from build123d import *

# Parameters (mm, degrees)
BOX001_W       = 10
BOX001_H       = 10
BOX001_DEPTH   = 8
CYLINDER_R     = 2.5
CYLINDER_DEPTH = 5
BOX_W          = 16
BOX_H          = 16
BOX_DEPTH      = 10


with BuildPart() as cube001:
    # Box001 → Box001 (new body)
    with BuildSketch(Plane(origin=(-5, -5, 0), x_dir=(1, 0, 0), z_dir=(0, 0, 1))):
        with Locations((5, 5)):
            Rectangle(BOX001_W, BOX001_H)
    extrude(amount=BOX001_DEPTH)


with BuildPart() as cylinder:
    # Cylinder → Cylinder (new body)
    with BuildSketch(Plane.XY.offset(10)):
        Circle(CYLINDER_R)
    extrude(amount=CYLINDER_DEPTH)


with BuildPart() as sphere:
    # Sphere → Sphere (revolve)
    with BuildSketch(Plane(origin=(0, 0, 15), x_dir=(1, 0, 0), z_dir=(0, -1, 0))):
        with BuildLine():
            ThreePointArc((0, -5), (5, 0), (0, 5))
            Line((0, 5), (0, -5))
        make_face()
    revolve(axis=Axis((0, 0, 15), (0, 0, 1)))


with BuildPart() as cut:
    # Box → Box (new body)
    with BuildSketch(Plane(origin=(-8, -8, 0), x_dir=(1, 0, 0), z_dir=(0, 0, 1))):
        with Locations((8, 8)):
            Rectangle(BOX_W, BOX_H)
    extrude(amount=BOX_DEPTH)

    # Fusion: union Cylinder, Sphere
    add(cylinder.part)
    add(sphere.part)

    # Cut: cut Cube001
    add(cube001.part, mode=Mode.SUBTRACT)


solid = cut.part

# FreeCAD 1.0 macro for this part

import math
import FreeCAD as App
import Part
import Sketcher
from FreeCAD import Vector
Q = App.Units.Quantity


def add_polygon(sketch, points):
    """Adds a closed chain of lines whose ends are joined by coincident constraints."""
    first, n = sketch.GeometryCount, len(points)
    for a, b in zip(points, points[1:] + points[:1]):
        sketch.addGeometry(Part.LineSegment(App.Vector(*a, 0), App.Vector(*b, 0)), False)
    for i in range(n):
        sketch.addConstraint(Sketcher.Constraint("Coincident", first + i, 2, first + (i + 1) % n, 1))

doc = App.newDocument("Part")
body = doc.addObject("PartDesign::Body", "Body")

# Sketch on XY plane
sketch1 = doc.addObject("Sketcher::SketchObject", "Sketch")
body.addObject(sketch1)
sketch1.AttachmentSupport = (doc.XY_Plane, [""])
sketch1.MapMode = "FlatFace"
add_polygon(sketch1, [(-5, 5), (-5, -5), (5, -5), (5, 5)])  # lines 0-3
sketch1.addConstraint(Sketcher.Constraint("Vertical", 0))
sketch1.addConstraint(Sketcher.Constraint("Horizontal", 1))
sketch1.addConstraint(Sketcher.Constraint("Vertical", 2))
sketch1.addConstraint(Sketcher.Constraint("Horizontal", 3))
sketch1.addConstraint(Sketcher.Constraint("Symmetric", 0, 2, 2, 2, -1, 1))
sketch1.addConstraint(Sketcher.Constraint("Equal", 3, 0))
sketch1.addConstraint(Sketcher.Constraint("DistanceX", 1, 1, 1, 2, Q("10 mm")))
pad1 = doc.addObject("PartDesign::Pad", "Pad")
body.addObject(pad1)
pad1.Profile = sketch1
pad1.Length = 8
body2 = doc.addObject("PartDesign::Body", "Body001")

# Sketch on XY plane
sketch2 = doc.addObject("Sketcher::SketchObject", "Sketch001")
body2.addObject(sketch2)
sketch2.AttachmentSupport = (doc.getObject("XY_Plane001"), [""])
sketch2.MapMode = "FlatFace"
sketch2.AttachmentOffset = App.Placement(Vector(0, 0, 10), App.Rotation())
sketch2.addGeometry(Part.Circle(Vector(0, 0, 0), Vector(0, 0, 1), 2.5), False)
sketch2.addConstraint(Sketcher.Constraint("Coincident", 0, 3, -1, 1))
sketch2.addConstraint(Sketcher.Constraint("Diameter", 0, Q("5 mm")))
pad2 = doc.addObject("PartDesign::Pad", "Pad001")
body2.addObject(pad2)
pad2.Profile = sketch2
pad2.Length = 5
body3 = doc.addObject("PartDesign::Body", "Body002")

# Sketch on XZ plane
sketch3 = doc.addObject("Sketcher::SketchObject", "Sketch002")
body3.addObject(sketch3)
sketch3.AttachmentSupport = (doc.getObject("XZ_Plane002"), [""])
sketch3.MapMode = "FlatFace"
sketch3.addGeometry(Part.ArcOfCircle(Part.Circle(Vector(0, 15, 0), Vector(0, 0, 1), 5), math.radians(-90), math.radians(90)), False)
sketch3.addGeometry(Part.LineSegment(Vector(0, 20, 0), Vector(0, 10, 0)), False)
sketch3.addConstraint(Sketcher.Constraint("Coincident", 0, 1, 1, 2))
sketch3.addConstraint(Sketcher.Constraint("Coincident", 1, 1, 0, 2))
sketch3.addConstraint(Sketcher.Constraint("Vertical", 1))
sketch3.addConstraint(Sketcher.Constraint("PointOnObject", 0, 3, -2))
sketch3.addConstraint(Sketcher.Constraint("PointOnObject", 0, 1, -2))
sketch3.addConstraint(Sketcher.Constraint("Radius", 0, Q("5 mm")))
sketch3.addConstraint(Sketcher.Constraint("DistanceY", -1, 1, 0, 3, Q("15 mm")))
revolution = doc.addObject("PartDesign::Revolution", "Revolution")
body3.addObject(revolution)
revolution.Profile = sketch3
revolution.ReferenceAxis = (sketch3, ["V_Axis"])
revolution.Angle = 360
body4 = doc.addObject("PartDesign::Body", "Body003")

# Sketch on XY plane
sketch4 = doc.addObject("Sketcher::SketchObject", "Sketch003")
body4.addObject(sketch4)
sketch4.AttachmentSupport = (doc.getObject("XY_Plane003"), [""])
sketch4.MapMode = "FlatFace"
add_polygon(sketch4, [(-8, 8), (-8, -8), (8, -8), (8, 8)])  # lines 0-3
sketch4.addConstraint(Sketcher.Constraint("Vertical", 0))
sketch4.addConstraint(Sketcher.Constraint("Horizontal", 1))
sketch4.addConstraint(Sketcher.Constraint("Vertical", 2))
sketch4.addConstraint(Sketcher.Constraint("Horizontal", 3))
sketch4.addConstraint(Sketcher.Constraint("Symmetric", 0, 2, 2, 2, -1, 1))
sketch4.addConstraint(Sketcher.Constraint("Equal", 3, 0))
sketch4.addConstraint(Sketcher.Constraint("DistanceX", 1, 1, 1, 2, Q("16 mm")))
pad3 = doc.addObject("PartDesign::Pad", "Pad002")
body4.addObject(pad3)
pad3.Profile = sketch4
pad3.Length = 10
doc.recompute()

boolean = doc.addObject("PartDesign::Boolean", "Boolean")
body4.addObject(boolean)
boolean.Type = "Fuse"
boolean.addObjects([body2])
doc.recompute()

boolean2 = doc.addObject("PartDesign::Boolean", "Boolean001")
body4.addObject(boolean2)
boolean2.Type = "Fuse"
boolean2.addObjects([body3])
doc.recompute()

boolean3 = doc.addObject("PartDesign::Boolean", "Boolean002")
body4.addObject(boolean3)
boolean3.Type = "Cut"
boolean3.addObjects([body])

doc.recompute()
